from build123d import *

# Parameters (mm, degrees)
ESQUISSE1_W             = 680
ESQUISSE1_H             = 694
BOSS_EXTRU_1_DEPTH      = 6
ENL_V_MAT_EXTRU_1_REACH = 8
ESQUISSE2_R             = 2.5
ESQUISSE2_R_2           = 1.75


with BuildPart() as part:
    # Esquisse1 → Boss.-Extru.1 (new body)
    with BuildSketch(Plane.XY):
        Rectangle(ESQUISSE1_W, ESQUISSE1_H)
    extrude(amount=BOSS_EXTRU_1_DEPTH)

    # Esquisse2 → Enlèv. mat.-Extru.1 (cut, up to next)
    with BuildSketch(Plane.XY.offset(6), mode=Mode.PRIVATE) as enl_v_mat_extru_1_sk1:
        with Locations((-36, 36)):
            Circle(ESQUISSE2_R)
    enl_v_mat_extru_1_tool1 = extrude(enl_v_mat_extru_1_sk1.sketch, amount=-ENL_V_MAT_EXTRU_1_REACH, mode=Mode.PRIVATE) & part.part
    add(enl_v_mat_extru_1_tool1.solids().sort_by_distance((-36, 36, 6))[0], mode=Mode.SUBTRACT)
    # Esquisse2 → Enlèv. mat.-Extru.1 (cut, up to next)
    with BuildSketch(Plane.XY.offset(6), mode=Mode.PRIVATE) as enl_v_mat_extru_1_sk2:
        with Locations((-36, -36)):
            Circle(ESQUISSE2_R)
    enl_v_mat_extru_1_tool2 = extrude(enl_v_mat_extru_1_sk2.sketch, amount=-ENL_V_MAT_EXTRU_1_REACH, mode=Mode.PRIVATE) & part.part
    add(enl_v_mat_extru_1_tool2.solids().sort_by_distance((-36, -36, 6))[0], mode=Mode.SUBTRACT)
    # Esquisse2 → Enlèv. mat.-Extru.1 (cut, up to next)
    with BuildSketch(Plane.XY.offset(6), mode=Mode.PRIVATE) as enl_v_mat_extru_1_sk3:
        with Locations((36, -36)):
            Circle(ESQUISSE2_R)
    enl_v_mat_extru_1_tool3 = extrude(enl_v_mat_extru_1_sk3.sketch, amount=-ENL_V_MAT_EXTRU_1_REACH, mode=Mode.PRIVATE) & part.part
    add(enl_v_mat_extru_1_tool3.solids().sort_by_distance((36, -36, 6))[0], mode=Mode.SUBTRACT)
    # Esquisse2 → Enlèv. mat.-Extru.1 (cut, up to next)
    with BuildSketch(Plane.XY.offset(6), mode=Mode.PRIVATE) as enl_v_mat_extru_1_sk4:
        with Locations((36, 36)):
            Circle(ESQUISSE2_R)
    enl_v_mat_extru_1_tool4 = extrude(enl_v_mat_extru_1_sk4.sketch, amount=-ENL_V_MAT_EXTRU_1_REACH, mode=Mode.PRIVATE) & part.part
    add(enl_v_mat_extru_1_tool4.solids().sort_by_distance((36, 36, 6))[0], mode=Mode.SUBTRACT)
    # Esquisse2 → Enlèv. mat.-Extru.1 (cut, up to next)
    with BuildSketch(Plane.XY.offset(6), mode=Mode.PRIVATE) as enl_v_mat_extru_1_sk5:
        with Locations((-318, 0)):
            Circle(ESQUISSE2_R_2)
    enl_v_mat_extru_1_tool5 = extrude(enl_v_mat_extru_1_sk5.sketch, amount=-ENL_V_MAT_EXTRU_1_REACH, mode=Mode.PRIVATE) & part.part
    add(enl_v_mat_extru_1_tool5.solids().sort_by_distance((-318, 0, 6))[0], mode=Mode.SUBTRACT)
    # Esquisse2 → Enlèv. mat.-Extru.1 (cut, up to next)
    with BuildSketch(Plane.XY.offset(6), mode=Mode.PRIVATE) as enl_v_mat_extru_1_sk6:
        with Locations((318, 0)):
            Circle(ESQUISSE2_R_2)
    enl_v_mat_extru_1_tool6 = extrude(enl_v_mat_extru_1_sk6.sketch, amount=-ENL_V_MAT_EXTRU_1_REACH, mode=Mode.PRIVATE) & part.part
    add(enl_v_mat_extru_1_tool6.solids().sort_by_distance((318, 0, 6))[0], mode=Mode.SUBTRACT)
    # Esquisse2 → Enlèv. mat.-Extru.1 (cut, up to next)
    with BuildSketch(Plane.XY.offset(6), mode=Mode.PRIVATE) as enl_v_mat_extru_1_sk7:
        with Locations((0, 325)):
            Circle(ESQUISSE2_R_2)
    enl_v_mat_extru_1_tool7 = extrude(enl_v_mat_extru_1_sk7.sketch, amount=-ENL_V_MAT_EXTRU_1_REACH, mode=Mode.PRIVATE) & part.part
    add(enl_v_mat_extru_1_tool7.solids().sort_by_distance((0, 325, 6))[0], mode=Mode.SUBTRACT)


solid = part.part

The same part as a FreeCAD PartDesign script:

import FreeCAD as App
import Part
import Sketcher

V = App.Vector


def add_polygon(sketch, points):
    """Adds a closed chain of lines whose ends are joined by coincident constraints."""
    first, n = sketch.GeometryCount, len(points)
    for a, b in zip(points, points[1:] + points[:1]):
        sketch.addGeometry(Part.LineSegment(App.Vector(*a, 0), App.Vector(*b, 0)), False)
    for i in range(n):
        sketch.addConstraint(Sketcher.Constraint("Coincident", first + i, 2, first + (i + 1) % n, 1))

doc = App.newDocument("Part")
params = doc.addObject("Spreadsheet::Sheet", "Params")
for row, (alias, value) in enumerate([
    ("sketch1_width", "680 mm"),
    ("sketch1_height", "694 mm"),
    ("pad1_length", "6 mm"),
    ("sketch2_diameter", "5 mm"),
    ("sketch3_diameter", "5 mm"),
    ("sketch4_diameter", "5 mm"),
    ("sketch5_diameter", "5 mm"),
    ("sketch6_diameter", "3.5 mm"),
    ("sketch7_diameter", "3.5 mm"),
    ("sketch8_diameter", "3.5 mm"),
], start=1):
    params.set(f"A{row}", alias)
    params.set(f"B{row}", "=" + value)
    params.setAlias(f"B{row}", alias)

body = doc.addObject("PartDesign::Body", "Body")

# Sketch on XY plane
sketch1 = doc.addObject("Sketcher::SketchObject", "Sketch")
body.addObject(sketch1)
sketch1.AttachmentSupport = (doc.XY_Plane, [""])
sketch1.MapMode = "FlatFace"
add_polygon(sketch1, [(-340, 347), (-340, -347), (340, -347), (340, 347)])  # lines 0-3
sketch1.addConstraint(Sketcher.Constraint("Vertical", 0))
sketch1.addConstraint(Sketcher.Constraint("Horizontal", 1))
sketch1.addConstraint(Sketcher.Constraint("Vertical", 2))
sketch1.addConstraint(Sketcher.Constraint("Horizontal", 3))
sketch1.addConstraint(Sketcher.Constraint("Symmetric", 0, 2, 2, 2, -1, 1))
sketch1.addConstraint(Sketcher.Constraint("DistanceX", 1, 1, 1, 2, 680.0))
sketch1.addConstraint(Sketcher.Constraint("DistanceY", 0, 2, 0, 1, 694.0))
sketch1.setExpression("Constraints[9]", "Params.sketch1_width")
sketch1.setExpression("Constraints[10]", "Params.sketch1_height")
pad1 = doc.addObject("PartDesign::Pad", "Pad")
body.addObject(pad1)
pad1.Profile = sketch1
pad1.setExpression("Length", "Params.pad1_length")

# Sketch on XY plane
sketch2 = doc.addObject("Sketcher::SketchObject", "Sketch001")
body.addObject(sketch2)
sketch2.AttachmentSupport = (doc.XY_Plane, [""])
sketch2.MapMode = "FlatFace"
sketch2.AttachmentOffset = App.Placement(V(0, 0, 6), App.Rotation())
sketch2.addGeometry(Part.Circle(V(-36, 36, 0), V(0, 0, 1), 2.5), False)
sketch2.addConstraint(Sketcher.Constraint("Diameter", 0, 5.0))
sketch2.addConstraint(Sketcher.Constraint("DistanceX", 0, 3, -1, 1, 36.0))
sketch2.addConstraint(Sketcher.Constraint("DistanceY", -1, 1, 0, 3, 36.0))
sketch2.setExpression("Constraints[0]", "Params.sketch2_diameter")
pocket1 = doc.addObject("PartDesign::Pocket", "Pocket")
body.addObject(pocket1)
pocket1.Profile = sketch2
pocket1.Type = "UpToFirst"

# Sketch on XY plane
sketch3 = doc.addObject("Sketcher::SketchObject", "Sketch002")
body.addObject(sketch3)
sketch3.AttachmentSupport = (doc.XY_Plane, [""])
sketch3.MapMode = "FlatFace"
sketch3.AttachmentOffset = App.Placement(V(0, 0, 6), App.Rotation())
sketch3.addGeometry(Part.Circle(V(-36, -36, 0), V(0, 0, 1), 2.5), False)
sketch3.addConstraint(Sketcher.Constraint("Diameter", 0, 5.0))
sketch3.addConstraint(Sketcher.Constraint("DistanceX", 0, 3, -1, 1, 36.0))
sketch3.addConstraint(Sketcher.Constraint("DistanceY", 0, 3, -1, 1, 36.0))
sketch3.setExpression("Constraints[0]", "Params.sketch3_diameter")
pocket2 = doc.addObject("PartDesign::Pocket", "Pocket001")
body.addObject(pocket2)
pocket2.Profile = sketch3
pocket2.Type = "UpToFirst"

# Sketch on XY plane
sketch4 = doc.addObject("Sketcher::SketchObject", "Sketch003")
body.addObject(sketch4)
sketch4.AttachmentSupport = (doc.XY_Plane, [""])
sketch4.MapMode = "FlatFace"
sketch4.AttachmentOffset = App.Placement(V(0, 0, 6), App.Rotation())
sketch4.addGeometry(Part.Circle(V(36, -36, 0), V(0, 0, 1), 2.5), False)
sketch4.addConstraint(Sketcher.Constraint("Diameter", 0, 5.0))
sketch4.addConstraint(Sketcher.Constraint("DistanceX", -1, 1, 0, 3, 36.0))
sketch4.addConstraint(Sketcher.Constraint("DistanceY", 0, 3, -1, 1, 36.0))
sketch4.setExpression("Constraints[0]", "Params.sketch4_diameter")
pocket3 = doc.addObject("PartDesign::Pocket", "Pocket002")
body.addObject(pocket3)
pocket3.Profile = sketch4
pocket3.Type = "UpToFirst"

# Sketch on XY plane
sketch5 = doc.addObject("Sketcher::SketchObject", "Sketch004")
body.addObject(sketch5)
sketch5.AttachmentSupport = (doc.XY_Plane, [""])
sketch5.MapMode = "FlatFace"
sketch5.AttachmentOffset = App.Placement(V(0, 0, 6), App.Rotation())
sketch5.addGeometry(Part.Circle(V(36, 36, 0), V(0, 0, 1), 2.5), False)
sketch5.addConstraint(Sketcher.Constraint("Diameter", 0, 5.0))
sketch5.addConstraint(Sketcher.Constraint("DistanceX", -1, 1, 0, 3, 36.0))
sketch5.addConstraint(Sketcher.Constraint("DistanceY", -1, 1, 0, 3, 36.0))
sketch5.setExpression("Constraints[0]", "Params.sketch5_diameter")
pocket4 = doc.addObject("PartDesign::Pocket", "Pocket003")
body.addObject(pocket4)
pocket4.Profile = sketch5
pocket4.Type = "UpToFirst"

# Sketch on XY plane
sketch6 = doc.addObject("Sketcher::SketchObject", "Sketch005")
body.addObject(sketch6)
sketch6.AttachmentSupport = (doc.XY_Plane, [""])
sketch6.MapMode = "FlatFace"
sketch6.AttachmentOffset = App.Placement(V(0, 0, 6), App.Rotation())
sketch6.addGeometry(Part.Circle(V(-318, 0, 0), V(0, 0, 1), 1.75), False)
sketch6.addConstraint(Sketcher.Constraint("PointOnObject", 0, 3, -1))
sketch6.addConstraint(Sketcher.Constraint("Diameter", 0, 3.5))
sketch6.addConstraint(Sketcher.Constraint("DistanceX", 0, 3, -1, 1, 318.0))
sketch6.setExpression("Constraints[1]", "Params.sketch6_diameter")
pocket5 = doc.addObject("PartDesign::Pocket", "Pocket004")
body.addObject(pocket5)
pocket5.Profile = sketch6
pocket5.Type = "UpToFirst"

# Sketch on XY plane
sketch7 = doc.addObject("Sketcher::SketchObject", "Sketch006")
body.addObject(sketch7)
sketch7.AttachmentSupport = (doc.XY_Plane, [""])
sketch7.MapMode = "FlatFace"
sketch7.AttachmentOffset = App.Placement(V(0, 0, 6), App.Rotation())
sketch7.addGeometry(Part.Circle(V(318, 0, 0), V(0, 0, 1), 1.75), False)
sketch7.addConstraint(Sketcher.Constraint("PointOnObject", 0, 3, -1))
sketch7.addConstraint(Sketcher.Constraint("Diameter", 0, 3.5))
sketch7.addConstraint(Sketcher.Constraint("DistanceX", -1, 1, 0, 3, 318.0))
sketch7.setExpression("Constraints[1]", "Params.sketch7_diameter")
pocket6 = doc.addObject("PartDesign::Pocket", "Pocket005")
body.addObject(pocket6)
pocket6.Profile = sketch7
pocket6.Type = "UpToFirst"

# Sketch on XY plane
sketch8 = doc.addObject("Sketcher::SketchObject", "Sketch007")
body.addObject(sketch8)
sketch8.AttachmentSupport = (doc.XY_Plane, [""])
sketch8.MapMode = "FlatFace"
sketch8.AttachmentOffset = App.Placement(V(0, 0, 6), App.Rotation())
sketch8.addGeometry(Part.Circle(V(0, 325, 0), V(0, 0, 1), 1.75), False)
sketch8.addConstraint(Sketcher.Constraint("PointOnObject", 0, 3, -2))
sketch8.addConstraint(Sketcher.Constraint("Diameter", 0, 3.5))
sketch8.addConstraint(Sketcher.Constraint("DistanceY", -1, 1, 0, 3, 325.0))
sketch8.setExpression("Constraints[1]", "Params.sketch8_diameter")
pocket7 = doc.addObject("PartDesign::Pocket", "Pocket006")
body.addObject(pocket7)
pocket7.Profile = sketch8
pocket7.Type = "UpToFirst"

doc.recompute()
